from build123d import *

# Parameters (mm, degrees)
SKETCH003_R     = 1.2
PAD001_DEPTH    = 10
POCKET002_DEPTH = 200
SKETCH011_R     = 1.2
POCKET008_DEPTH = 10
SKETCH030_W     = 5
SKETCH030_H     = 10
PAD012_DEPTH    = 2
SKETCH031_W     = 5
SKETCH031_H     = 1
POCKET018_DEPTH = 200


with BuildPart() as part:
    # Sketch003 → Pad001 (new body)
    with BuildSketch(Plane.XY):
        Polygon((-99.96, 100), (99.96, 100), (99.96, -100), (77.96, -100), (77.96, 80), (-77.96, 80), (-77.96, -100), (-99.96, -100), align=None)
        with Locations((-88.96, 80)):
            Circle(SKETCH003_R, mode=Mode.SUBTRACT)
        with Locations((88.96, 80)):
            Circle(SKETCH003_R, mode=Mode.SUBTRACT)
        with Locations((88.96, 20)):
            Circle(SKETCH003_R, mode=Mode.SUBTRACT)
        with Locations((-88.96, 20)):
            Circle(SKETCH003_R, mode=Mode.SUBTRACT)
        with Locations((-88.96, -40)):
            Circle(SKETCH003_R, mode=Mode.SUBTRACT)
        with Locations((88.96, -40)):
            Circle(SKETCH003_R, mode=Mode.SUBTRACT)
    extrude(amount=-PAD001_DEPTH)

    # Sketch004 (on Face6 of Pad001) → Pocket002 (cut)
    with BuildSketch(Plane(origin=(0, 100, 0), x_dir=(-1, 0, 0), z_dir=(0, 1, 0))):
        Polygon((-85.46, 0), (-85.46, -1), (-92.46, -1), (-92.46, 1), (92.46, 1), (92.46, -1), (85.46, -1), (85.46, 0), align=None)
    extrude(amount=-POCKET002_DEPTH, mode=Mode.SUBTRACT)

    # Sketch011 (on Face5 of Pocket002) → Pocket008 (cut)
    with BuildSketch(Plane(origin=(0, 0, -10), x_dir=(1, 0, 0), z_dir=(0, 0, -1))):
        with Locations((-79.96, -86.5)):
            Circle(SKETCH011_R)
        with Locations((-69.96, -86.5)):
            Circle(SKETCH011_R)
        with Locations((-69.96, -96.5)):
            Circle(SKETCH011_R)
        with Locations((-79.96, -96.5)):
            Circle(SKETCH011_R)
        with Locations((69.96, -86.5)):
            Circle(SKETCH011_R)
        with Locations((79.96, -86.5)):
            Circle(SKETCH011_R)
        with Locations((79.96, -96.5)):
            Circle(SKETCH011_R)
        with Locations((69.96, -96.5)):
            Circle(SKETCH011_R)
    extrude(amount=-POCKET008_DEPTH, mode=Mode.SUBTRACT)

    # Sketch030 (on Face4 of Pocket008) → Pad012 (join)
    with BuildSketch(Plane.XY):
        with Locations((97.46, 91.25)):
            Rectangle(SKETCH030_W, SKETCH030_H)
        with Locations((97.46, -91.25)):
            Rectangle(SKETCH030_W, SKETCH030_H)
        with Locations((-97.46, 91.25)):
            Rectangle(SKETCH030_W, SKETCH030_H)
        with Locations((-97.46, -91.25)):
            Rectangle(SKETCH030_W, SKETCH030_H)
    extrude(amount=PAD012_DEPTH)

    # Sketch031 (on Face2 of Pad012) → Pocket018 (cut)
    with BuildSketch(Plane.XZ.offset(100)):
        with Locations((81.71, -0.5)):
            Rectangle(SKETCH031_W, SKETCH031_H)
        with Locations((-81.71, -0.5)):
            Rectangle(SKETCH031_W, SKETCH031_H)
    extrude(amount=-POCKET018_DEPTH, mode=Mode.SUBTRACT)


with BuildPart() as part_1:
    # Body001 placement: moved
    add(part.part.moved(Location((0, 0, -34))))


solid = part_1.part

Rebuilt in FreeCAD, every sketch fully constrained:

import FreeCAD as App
import Part
import Sketcher


def add_polygon(sketch, points):
    """Adds a closed chain of lines whose ends are joined by coincident constraints."""
    first, n = sketch.GeometryCount, len(points)
    for a, b in zip(points, points[1:] + points[:1]):
        sketch.addGeometry(Part.LineSegment(App.Vector(*a, 0), App.Vector(*b, 0)), False)
    for i in range(n):
        sketch.addConstraint(Sketcher.Constraint("Coincident", first + i, 2, first + (i + 1) % n, 1))

doc = App.newDocument("Part")
body = doc.addObject("PartDesign::Body", "Body")

# Sketch on XY plane
sketch1 = body.newObject("Sketcher::SketchObject", "Sketch")
sketch1.AttachmentSupport = (doc.getObject("XY_Plane"), [""])
sketch1.MapMode = "FlatFace"
add_polygon(sketch1, [(99.96, 100), (-99.96, 100), (-99.96, -100), (-77.96, -100), (-77.96, 80), (77.96, 80), (77.96, -100), (99.96, -100)])  # lines 0-7
sketch1.addGeometry(Part.Circle(App.Vector(88.96, -40, 0), App.Vector(0, 0, 1), 1.2), False)  # 8
sketch1.addGeometry(Part.Circle(App.Vector(-88.96, -40, 0), App.Vector(0, 0, 1), 1.2), False)  # 9
sketch1.addGeometry(Part.Circle(App.Vector(88.96, 20, 0), App.Vector(0, 0, 1), 1.2), False)  # 10
sketch1.addGeometry(Part.Circle(App.Vector(88.96, 80, 0), App.Vector(0, 0, 1), 1.2), False)  # 11
sketch1.addGeometry(Part.Circle(App.Vector(-88.96, 20, 0), App.Vector(0, 0, 1), 1.2), False)  # 12
sketch1.addGeometry(Part.Circle(App.Vector(-88.96, 80, 0), App.Vector(0, 0, 1), 1.2), False)  # 13
sketch1.addConstraint(Sketcher.Constraint("Horizontal", 0))
sketch1.addConstraint(Sketcher.Constraint("Vertical", 1))
sketch1.addConstraint(Sketcher.Constraint("Horizontal", 2))
sketch1.addConstraint(Sketcher.Constraint("Vertical", 3))
sketch1.addConstraint(Sketcher.Constraint("Horizontal", 4))
sketch1.addConstraint(Sketcher.Constraint("Vertical", 5))
sketch1.addConstraint(Sketcher.Constraint("Horizontal", 6))
sketch1.addConstraint(Sketcher.Constraint("Vertical", 7))
sketch1.addConstraint(Sketcher.Constraint("Equal", 8, 9))
sketch1.addConstraint(Sketcher.Constraint("Equal", 9, 10))
sketch1.addConstraint(Sketcher.Constraint("Equal", 10, 11))
sketch1.addConstraint(Sketcher.Constraint("Equal", 11, 12))
sketch1.addConstraint(Sketcher.Constraint("Equal", 12, 13))
sketch1.addConstraint(Sketcher.Constraint("Symmetric", 0, 2, 6, 2, -1, 1))
sketch1.addConstraint(Sketcher.Constraint("Symmetric", 8, 3, 9, 3, -2))
sketch1.addConstraint(Sketcher.Constraint("Symmetric", 10, 3, 12, 3, -2))
sketch1.addConstraint(Sketcher.Constraint("Symmetric", 11, 3, 13, 3, -2))
sketch1.addConstraint(Sketcher.Constraint("Symmetric", 2, 2, 5, 2, -2))
sketch1.addConstraint(Sketcher.Constraint("Horizontal", 13, 3, 3, 2))
sketch1.addConstraint(Sketcher.Constraint("Vertical", 8, 3, 10, 3))
sketch1.addConstraint(Sketcher.Constraint("Vertical", 10, 3, 11, 3))
sketch1.addConstraint(Sketcher.Constraint("Diameter", 8, 2.4))
sketch1.addConstraint(Sketcher.Constraint("DistanceX", 2, 1, 2, 2, 22.0))
sketch1.addConstraint(Sketcher.Constraint("DistanceY", 1, 2, 1, 1, 200.0))
sketch1.addConstraint(Sketcher.Constraint("DistanceY", 3, 1, 3, 2, 180.0))
sketch1.addConstraint(Sketcher.Constraint("DistanceY", 8, 3, -1, 1, 40.0))
sketch1.addConstraint(Sketcher.Constraint("DistanceY", -1, 1, 10, 3, 20.0))
sketch1.addConstraint(Sketcher.Constraint("DistanceX", 0, 2, 13, 3, 11.0))
sketch1.addConstraint(Sketcher.Constraint("DistanceX", 0, 2, 0, 1, 199.92))
pad1 = body.newObject("PartDesign::Pad", "Pad")
pad1.Profile = sketch1
pad1.Length = 10
pad1.Reversed = True

# Sketch on XZ plane
sketch2 = body.newObject("Sketcher::SketchObject", "Sketch001")
sketch2.AttachmentSupport = (doc.getObject("XZ_Plane"), [""])
sketch2.MapMode = "FlatFace"
sketch2.AttachmentOffset = App.Placement(App.Vector(0, 0, -100), App.Rotation())
add_polygon(sketch2, [(85.46, -1), (85.46, 0), (-85.46, 0), (-85.46, -1), (-92.46, -1), (-92.46, 1), (92.46, 1), (92.46, -1)])  # lines 0-7
sketch2.addConstraint(Sketcher.Constraint("Vertical", 0))
sketch2.addConstraint(Sketcher.Constraint("Horizontal", 1))
sketch2.addConstraint(Sketcher.Constraint("Vertical", 2))
sketch2.addConstraint(Sketcher.Constraint("Horizontal", 3))
sketch2.addConstraint(Sketcher.Constraint("Vertical", 4))
sketch2.addConstraint(Sketcher.Constraint("Horizontal", 5))
sketch2.addConstraint(Sketcher.Constraint("Vertical", 6))
sketch2.addConstraint(Sketcher.Constraint("Horizontal", 7))
sketch2.addConstraint(Sketcher.Constraint("Symmetric", 0, 2, 1, 2, -1, 1))
sketch2.addConstraint(Sketcher.Constraint("Symmetric", 3, 2, 5, 2, -1, 1))
sketch2.addConstraint(Sketcher.Constraint("Horizontal", 3, 2, 6, 2))
sketch2.addConstraint(Sketcher.Constraint("DistanceX", 3, 2, 3, 1, 7.0))
sketch2.addConstraint(Sketcher.Constraint("DistanceY", 0, 1, 0, 2, 1.0))
sketch2.addConstraint(Sketcher.Constraint("DistanceX", 1, 2, 1, 1, 170.92))
pocket1 = body.newObject("PartDesign::Pocket", "Pocket")
pocket1.Profile = sketch2
pocket1.Length = 200
pocket1.Reversed = True

# Sketch on XY plane
sketch3 = body.newObject("Sketcher::SketchObject", "Sketch002")
sketch3.AttachmentSupport = (doc.getObject("XY_Plane"), [""])
sketch3.MapMode = "FlatFace"
sketch3.AttachmentOffset = App.Placement(App.Vector(0, 0, -10), App.Rotation())
sketch3.addGeometry(Part.Circle(App.Vector(-79.96, 86.5, 0), App.Vector(0, 0, 1), 1.2), False)
sketch3.addGeometry(Part.Circle(App.Vector(-69.96, 86.5, 0), App.Vector(0, 0, 1), 1.2), False)
sketch3.addGeometry(Part.Circle(App.Vector(-69.96, 96.5, 0), App.Vector(0, 0, 1), 1.2), False)
sketch3.addGeometry(Part.Circle(App.Vector(-79.96, 96.5, 0), App.Vector(0, 0, 1), 1.2), False)
sketch3.addGeometry(Part.Circle(App.Vector(69.96, 86.5, 0), App.Vector(0, 0, 1), 1.2), False)
sketch3.addGeometry(Part.Circle(App.Vector(79.96, 86.5, 0), App.Vector(0, 0, 1), 1.2), False)
sketch3.addGeometry(Part.Circle(App.Vector(79.96, 96.5, 0), App.Vector(0, 0, 1), 1.2), False)
sketch3.addGeometry(Part.Circle(App.Vector(69.96, 96.5, 0), App.Vector(0, 0, 1), 1.2), False)
sketch3.addConstraint(Sketcher.Constraint("Equal", 0, 1))
sketch3.addConstraint(Sketcher.Constraint("Equal", 1, 2))
sketch3.addConstraint(Sketcher.Constraint("Equal", 2, 3))
sketch3.addConstraint(Sketcher.Constraint("Equal", 3, 4))
sketch3.addConstraint(Sketcher.Constraint("Equal", 4, 5))
sketch3.addConstraint(Sketcher.Constraint("Equal", 5, 6))
sketch3.addConstraint(Sketcher.Constraint("Equal", 6, 7))
sketch3.addConstraint(Sketcher.Constraint("Symmetric", 1, 3, 4, 3, -2))
sketch3.addConstraint(Sketcher.Constraint("Symmetric", 0, 3, 5, 3, -2))
sketch3.addConstraint(Sketcher.Constraint("Symmetric", 3, 3, 6, 3, -2))
sketch3.addConstraint(Sketcher.Constraint("Symmetric", 2, 3, 7, 3, -2))
sketch3.addConstraint(Sketcher.Constraint("Horizontal", 0, 3, 1, 3))
sketch3.addConstraint(Sketcher.Constraint("Horizontal", 2, 3, 3, 3))
sketch3.addConstraint(Sketcher.Constraint("Vertical", 1, 3, 2, 3))
sketch3.addConstraint(Sketcher.Constraint("Vertical", 0, 3, 3, 3))
sketch3.addConstraint(Sketcher.Constraint("Diameter", 0, 2.4))
sketch3.addConstraint(Sketcher.Constraint("DistanceX", 0, 3, 1, 3, 10.0))
sketch3.addConstraint(Sketcher.Constraint("DistanceY", 1, 3, 2, 3, 10.0))
sketch3.addConstraint(Sketcher.Constraint("DistanceY", -1, 1, 0, 3, 86.5))
sketch3.addConstraint(Sketcher.Constraint("DistanceX", 0, 3, -1, 1, 79.96))
pocket2 = body.newObject("PartDesign::Pocket", "Pocket001")
pocket2.Profile = sketch3
pocket2.Length = 10
pocket2.Reversed = True

# Sketch on XY plane
sketch4 = body.newObject("Sketcher::SketchObject", "Sketch003")
sketch4.AttachmentSupport = (doc.getObject("XY_Plane"), [""])
sketch4.MapMode = "FlatFace"
add_polygon(sketch4, [(94.96, 96.25), (94.96, 86.25), (99.96, 86.25), (99.96, 96.25)])  # lines 0-3
add_polygon(sketch4, [(94.96, -86.25), (94.96, -96.25), (99.96, -96.25), (99.96, -86.25)])  # lines 4-7
add_polygon(sketch4, [(-99.96, 96.25), (-99.96, 86.25), (-94.96, 86.25), (-94.96, 96.25)])  # lines 8-11
add_polygon(sketch4, [(-99.96, -86.25), (-99.96, -96.25), (-94.96, -96.25), (-94.96, -86.25)])  # lines 12-15
sketch4.addConstraint(Sketcher.Constraint("Vertical", 0))
sketch4.addConstraint(Sketcher.Constraint("Horizontal", 1))
sketch4.addConstraint(Sketcher.Constraint("Vertical", 2))
sketch4.addConstraint(Sketcher.Constraint("Horizontal", 3))
sketch4.addConstraint(Sketcher.Constraint("Vertical", 4))
sketch4.addConstraint(Sketcher.Constraint("Horizontal", 5))
sketch4.addConstraint(Sketcher.Constraint("Vertical", 6))
sketch4.addConstraint(Sketcher.Constraint("Horizontal", 7))
sketch4.addConstraint(Sketcher.Constraint("Vertical", 8))
sketch4.addConstraint(Sketcher.Constraint("Horizontal", 9))
sketch4.addConstraint(Sketcher.Constraint("Vertical", 10))
sketch4.addConstraint(Sketcher.Constraint("Horizontal", 11))
sketch4.addConstraint(Sketcher.Constraint("Vertical", 12))
sketch4.addConstraint(Sketcher.Constraint("Horizontal", 13))
sketch4.addConstraint(Sketcher.Constraint("Vertical", 14))
sketch4.addConstraint(Sketcher.Constraint("Horizontal", 15))
sketch4.addConstraint(Sketcher.Constraint("Symmetric", 6, 2, 8, 2, -1, 1))
sketch4.addConstraint(Sketcher.Constraint("Symmetric", 4, 2, 10, 2, -1, 1))
sketch4.addConstraint(Sketcher.Constraint("Symmetric", 2, 2, 12, 2, -1, 1))
sketch4.addConstraint(Sketcher.Constraint("Symmetric", 0, 2, 14, 2, -1, 1))
sketch4.addConstraint(Sketcher.Constraint("Symmetric", 1, 2, 8, 2, -2))
sketch4.addConstraint(Sketcher.Constraint("Symmetric", 3, 2, 10, 2, -2))
sketch4.addConstraint(Sketcher.Constraint("DistanceX", 1, 1, 1, 2, 5.0))
sketch4.addConstraint(Sketcher.Constraint("DistanceY", 0, 2, 0, 1, 10.0))
sketch4.addConstraint(Sketcher.Constraint("DistanceY", 4, 2, 0, 2, 182.5))
sketch4.addConstraint(Sketcher.Constraint("DistanceX", -1, 1, 0, 2, 94.96))
pad2 = body.newObject("PartDesign::Pad", "Pad001")
pad2.Profile = sketch4
pad2.Length = 2

# Sketch on XZ plane
sketch5 = body.newObject("Sketcher::SketchObject", "Sketch004")
sketch5.AttachmentSupport = (doc.getObject("XZ_Plane"), [""])
sketch5.MapMode = "FlatFace"
sketch5.AttachmentOffset = App.Placement(App.Vector(0, 0, 100), App.Rotation())
add_polygon(sketch5, [(79.21, 0), (79.21, -1), (84.21, -1), (84.21, 0)])  # lines 0-3
add_polygon(sketch5, [(-84.21, 0), (-84.21, -1), (-79.21, -1), (-79.21, 0)])  # lines 4-7
sketch5.addConstraint(Sketcher.Constraint("Vertical", 0))
sketch5.addConstraint(Sketcher.Constraint("Horizontal", 1))
sketch5.addConstraint(Sketcher.Constraint("Vertical", 2))
sketch5.addConstraint(Sketcher.Constraint("Horizontal", 3))
sketch5.addConstraint(Sketcher.Constraint("Vertical", 4))
sketch5.addConstraint(Sketcher.Constraint("Horizontal", 5))
sketch5.addConstraint(Sketcher.Constraint("Vertical", 6))
sketch5.addConstraint(Sketcher.Constraint("Horizontal", 7))
sketch5.addConstraint(Sketcher.Constraint("Symmetric", 3, 2, 6, 2, -1, 1))
sketch5.addConstraint(Sketcher.Constraint("Symmetric", 1, 2, 4, 2, -2))
sketch5.addConstraint(Sketcher.Constraint("PointOnObject", 2, 2, -1))
sketch5.addConstraint(Sketcher.Constraint("DistanceX", 1, 1, 1, 2, 5.0))
sketch5.addConstraint(Sketcher.Constraint("DistanceY", 0, 2, 0, 1, 1.0))
sketch5.addConstraint(Sketcher.Constraint("DistanceX", -1, 1, 0, 2, 79.21))
pocket3 = body.newObject("PartDesign::Pocket", "Pocket002")
pocket3.Profile = sketch5
pocket3.Length = 200
body2 = doc.addObject("PartDesign::Body", "Body001")
doc.recompute()

body.Placement = App.Placement(App.Vector(0, 0, -34), App.Rotation(App.Vector(0, 0, 1), 0))
boolean = body2.newObject("PartDesign::Boolean", "Boolean")
boolean.Type = "Fuse"
boolean.addObjects([body])

doc.recompute()
